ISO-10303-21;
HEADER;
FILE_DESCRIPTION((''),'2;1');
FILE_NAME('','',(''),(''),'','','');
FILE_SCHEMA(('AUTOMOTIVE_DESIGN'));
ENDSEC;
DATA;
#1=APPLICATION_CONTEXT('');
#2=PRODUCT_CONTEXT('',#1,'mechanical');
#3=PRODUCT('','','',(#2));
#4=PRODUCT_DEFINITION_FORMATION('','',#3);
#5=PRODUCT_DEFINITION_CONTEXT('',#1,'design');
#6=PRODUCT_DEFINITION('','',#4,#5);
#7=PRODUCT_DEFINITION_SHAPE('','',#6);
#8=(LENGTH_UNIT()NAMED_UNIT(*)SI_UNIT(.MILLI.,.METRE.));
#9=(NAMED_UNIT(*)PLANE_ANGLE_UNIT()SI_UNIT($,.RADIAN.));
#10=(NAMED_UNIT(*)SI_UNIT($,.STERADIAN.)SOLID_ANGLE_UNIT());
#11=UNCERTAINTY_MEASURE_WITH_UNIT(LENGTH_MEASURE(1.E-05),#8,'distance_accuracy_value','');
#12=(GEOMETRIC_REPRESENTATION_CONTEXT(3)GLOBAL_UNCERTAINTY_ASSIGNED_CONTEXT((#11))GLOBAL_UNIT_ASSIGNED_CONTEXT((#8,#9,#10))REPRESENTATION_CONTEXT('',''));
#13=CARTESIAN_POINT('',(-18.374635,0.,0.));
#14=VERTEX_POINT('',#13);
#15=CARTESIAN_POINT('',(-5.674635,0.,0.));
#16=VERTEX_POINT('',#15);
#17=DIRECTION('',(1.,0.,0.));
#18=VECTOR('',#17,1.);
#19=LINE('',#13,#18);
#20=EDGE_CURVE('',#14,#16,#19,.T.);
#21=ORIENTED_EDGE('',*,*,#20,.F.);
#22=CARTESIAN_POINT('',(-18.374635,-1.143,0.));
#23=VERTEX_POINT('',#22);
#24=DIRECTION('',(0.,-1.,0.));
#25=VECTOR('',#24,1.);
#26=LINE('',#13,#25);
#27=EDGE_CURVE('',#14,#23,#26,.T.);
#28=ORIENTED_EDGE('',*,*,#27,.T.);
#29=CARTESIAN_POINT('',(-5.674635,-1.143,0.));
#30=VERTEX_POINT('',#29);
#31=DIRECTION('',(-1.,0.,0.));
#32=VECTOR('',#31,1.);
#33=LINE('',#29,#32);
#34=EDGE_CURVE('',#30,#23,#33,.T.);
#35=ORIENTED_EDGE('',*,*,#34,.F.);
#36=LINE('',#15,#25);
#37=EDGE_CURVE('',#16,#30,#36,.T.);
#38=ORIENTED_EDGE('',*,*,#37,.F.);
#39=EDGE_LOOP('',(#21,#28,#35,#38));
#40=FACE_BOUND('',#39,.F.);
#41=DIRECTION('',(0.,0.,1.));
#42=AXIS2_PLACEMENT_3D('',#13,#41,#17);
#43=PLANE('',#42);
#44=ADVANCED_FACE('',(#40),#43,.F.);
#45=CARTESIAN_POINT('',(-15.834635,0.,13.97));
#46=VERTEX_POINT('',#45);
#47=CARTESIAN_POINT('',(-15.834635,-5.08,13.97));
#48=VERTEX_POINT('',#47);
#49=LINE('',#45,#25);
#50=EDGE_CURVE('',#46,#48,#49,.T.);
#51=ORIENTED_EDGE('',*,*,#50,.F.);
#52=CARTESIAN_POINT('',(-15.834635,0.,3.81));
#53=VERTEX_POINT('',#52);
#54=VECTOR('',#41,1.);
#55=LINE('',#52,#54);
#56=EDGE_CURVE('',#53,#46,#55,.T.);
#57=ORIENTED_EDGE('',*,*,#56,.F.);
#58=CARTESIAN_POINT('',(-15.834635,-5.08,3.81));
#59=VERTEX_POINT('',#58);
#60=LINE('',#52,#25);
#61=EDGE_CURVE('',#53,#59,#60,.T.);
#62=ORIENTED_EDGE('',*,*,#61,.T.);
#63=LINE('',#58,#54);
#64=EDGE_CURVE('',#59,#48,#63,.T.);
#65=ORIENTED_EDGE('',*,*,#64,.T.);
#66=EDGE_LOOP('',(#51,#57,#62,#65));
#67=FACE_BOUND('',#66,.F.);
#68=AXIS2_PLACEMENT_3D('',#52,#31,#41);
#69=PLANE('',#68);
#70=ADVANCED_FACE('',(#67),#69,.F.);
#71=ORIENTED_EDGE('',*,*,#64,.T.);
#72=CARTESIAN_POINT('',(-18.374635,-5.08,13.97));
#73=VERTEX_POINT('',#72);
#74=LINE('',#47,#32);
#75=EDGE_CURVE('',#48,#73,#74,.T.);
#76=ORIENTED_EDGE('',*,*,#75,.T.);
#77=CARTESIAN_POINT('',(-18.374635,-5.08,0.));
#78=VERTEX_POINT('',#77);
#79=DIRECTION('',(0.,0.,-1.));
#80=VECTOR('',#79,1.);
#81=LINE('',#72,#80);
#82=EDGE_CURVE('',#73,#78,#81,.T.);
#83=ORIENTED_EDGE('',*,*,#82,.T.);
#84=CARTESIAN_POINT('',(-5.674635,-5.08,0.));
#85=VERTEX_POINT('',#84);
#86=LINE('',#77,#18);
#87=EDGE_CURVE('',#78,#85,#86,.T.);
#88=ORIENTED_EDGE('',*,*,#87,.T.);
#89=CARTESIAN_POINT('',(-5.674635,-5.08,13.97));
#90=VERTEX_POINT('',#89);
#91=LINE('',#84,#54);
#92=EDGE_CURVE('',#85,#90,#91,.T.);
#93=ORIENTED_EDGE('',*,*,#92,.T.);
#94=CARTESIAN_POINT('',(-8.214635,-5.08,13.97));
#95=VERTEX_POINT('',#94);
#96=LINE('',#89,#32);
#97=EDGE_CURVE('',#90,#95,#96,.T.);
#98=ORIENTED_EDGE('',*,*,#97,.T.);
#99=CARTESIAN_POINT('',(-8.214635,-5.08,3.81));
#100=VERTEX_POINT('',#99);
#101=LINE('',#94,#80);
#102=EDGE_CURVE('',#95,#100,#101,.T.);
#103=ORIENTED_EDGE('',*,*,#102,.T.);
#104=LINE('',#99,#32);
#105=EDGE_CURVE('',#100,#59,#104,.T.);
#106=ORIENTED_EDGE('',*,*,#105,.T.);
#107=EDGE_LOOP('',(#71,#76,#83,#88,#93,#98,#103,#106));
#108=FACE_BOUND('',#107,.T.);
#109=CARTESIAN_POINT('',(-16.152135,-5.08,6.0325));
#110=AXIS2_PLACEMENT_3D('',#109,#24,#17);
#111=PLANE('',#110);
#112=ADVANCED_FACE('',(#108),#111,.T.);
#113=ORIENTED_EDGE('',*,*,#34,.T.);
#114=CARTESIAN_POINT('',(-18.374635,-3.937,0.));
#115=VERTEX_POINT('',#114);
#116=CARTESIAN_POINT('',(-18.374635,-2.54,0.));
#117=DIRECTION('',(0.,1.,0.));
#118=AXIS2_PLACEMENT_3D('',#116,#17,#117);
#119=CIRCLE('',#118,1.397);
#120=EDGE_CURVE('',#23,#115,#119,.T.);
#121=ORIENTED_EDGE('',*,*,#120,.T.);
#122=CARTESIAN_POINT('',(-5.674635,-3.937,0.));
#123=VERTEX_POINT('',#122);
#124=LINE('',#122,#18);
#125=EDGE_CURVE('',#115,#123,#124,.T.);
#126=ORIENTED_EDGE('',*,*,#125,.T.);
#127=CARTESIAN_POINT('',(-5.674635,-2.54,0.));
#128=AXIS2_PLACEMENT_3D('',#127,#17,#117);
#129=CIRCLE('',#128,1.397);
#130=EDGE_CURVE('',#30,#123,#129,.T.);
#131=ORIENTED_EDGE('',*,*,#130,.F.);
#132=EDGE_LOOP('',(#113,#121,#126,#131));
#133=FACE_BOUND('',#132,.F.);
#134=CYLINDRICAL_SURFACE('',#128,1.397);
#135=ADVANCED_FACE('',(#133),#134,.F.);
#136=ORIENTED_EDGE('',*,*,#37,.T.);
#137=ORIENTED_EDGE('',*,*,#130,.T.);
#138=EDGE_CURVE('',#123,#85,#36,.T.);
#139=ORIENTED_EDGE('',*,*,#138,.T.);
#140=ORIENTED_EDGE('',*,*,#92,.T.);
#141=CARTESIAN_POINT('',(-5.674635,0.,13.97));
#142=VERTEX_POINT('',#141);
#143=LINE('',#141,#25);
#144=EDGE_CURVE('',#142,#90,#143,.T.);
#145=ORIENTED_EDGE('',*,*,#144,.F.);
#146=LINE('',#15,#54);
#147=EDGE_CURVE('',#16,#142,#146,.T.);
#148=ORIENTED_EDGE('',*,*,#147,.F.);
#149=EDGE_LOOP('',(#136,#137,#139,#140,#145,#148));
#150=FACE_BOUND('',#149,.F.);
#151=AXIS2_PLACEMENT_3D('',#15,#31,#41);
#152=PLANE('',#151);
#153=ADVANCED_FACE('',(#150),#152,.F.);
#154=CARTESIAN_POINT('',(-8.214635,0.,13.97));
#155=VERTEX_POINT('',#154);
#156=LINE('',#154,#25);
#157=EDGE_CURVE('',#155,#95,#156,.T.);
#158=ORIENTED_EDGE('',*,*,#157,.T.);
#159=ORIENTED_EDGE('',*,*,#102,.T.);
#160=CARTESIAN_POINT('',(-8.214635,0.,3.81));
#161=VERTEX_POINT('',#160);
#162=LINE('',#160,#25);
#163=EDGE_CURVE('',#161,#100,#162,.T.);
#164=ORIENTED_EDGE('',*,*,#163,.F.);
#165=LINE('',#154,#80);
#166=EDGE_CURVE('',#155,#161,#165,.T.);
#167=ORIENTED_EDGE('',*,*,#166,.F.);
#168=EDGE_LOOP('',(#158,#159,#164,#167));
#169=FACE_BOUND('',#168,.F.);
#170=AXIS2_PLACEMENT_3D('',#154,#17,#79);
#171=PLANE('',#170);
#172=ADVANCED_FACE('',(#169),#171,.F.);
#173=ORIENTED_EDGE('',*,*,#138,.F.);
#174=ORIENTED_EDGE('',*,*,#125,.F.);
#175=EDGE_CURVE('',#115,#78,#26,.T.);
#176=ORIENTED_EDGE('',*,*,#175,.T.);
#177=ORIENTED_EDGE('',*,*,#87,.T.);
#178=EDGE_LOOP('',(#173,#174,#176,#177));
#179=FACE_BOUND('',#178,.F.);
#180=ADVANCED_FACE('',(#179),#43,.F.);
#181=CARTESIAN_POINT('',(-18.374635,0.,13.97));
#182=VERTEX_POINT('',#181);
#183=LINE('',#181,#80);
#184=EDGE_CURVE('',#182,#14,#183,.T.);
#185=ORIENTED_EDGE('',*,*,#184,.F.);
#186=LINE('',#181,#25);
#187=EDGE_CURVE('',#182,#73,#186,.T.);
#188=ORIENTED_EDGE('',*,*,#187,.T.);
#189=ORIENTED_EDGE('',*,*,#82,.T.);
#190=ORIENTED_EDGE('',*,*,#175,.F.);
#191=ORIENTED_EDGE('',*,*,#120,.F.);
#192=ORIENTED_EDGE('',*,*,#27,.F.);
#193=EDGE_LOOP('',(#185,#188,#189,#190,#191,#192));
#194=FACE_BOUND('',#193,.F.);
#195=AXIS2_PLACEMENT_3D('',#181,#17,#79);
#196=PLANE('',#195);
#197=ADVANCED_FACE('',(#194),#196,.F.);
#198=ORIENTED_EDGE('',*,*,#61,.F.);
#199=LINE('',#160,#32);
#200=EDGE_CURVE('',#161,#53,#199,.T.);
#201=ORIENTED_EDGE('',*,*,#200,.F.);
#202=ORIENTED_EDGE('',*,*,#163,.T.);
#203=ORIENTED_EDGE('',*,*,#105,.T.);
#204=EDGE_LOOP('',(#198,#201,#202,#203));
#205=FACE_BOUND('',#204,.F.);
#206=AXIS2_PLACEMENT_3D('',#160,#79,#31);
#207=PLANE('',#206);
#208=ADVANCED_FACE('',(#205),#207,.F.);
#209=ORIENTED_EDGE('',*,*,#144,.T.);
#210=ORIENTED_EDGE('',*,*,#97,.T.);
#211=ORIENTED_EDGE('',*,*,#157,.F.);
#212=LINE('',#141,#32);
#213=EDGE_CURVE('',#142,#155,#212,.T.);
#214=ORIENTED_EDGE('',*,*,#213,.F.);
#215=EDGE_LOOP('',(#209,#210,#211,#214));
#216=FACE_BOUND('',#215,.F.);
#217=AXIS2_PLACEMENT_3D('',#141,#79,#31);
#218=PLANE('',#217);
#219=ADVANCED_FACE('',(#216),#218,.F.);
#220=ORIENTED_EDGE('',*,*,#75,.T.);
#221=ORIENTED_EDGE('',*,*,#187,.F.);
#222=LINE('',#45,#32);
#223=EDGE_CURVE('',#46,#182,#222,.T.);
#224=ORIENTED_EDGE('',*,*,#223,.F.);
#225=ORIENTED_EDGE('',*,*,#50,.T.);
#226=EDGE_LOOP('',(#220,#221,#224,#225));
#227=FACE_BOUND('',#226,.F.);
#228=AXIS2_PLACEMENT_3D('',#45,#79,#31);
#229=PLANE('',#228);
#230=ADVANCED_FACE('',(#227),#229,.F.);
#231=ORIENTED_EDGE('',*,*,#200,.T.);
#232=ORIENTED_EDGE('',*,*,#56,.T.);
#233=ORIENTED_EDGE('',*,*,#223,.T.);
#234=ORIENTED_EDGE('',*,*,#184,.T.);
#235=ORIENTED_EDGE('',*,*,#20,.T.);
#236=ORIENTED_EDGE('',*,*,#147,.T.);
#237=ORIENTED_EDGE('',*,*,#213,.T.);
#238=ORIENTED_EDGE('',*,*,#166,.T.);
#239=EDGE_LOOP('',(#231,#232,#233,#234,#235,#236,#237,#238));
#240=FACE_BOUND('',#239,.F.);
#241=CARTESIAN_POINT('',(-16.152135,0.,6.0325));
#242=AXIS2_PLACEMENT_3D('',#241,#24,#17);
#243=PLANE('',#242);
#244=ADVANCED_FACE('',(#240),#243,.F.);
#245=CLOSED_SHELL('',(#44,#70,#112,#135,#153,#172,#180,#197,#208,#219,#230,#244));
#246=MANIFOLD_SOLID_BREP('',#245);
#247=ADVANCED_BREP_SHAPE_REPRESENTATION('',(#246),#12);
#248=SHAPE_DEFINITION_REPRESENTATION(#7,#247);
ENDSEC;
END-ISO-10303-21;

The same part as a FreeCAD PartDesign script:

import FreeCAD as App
import Part
import Sketcher
Q = App.Units.Quantity


def add_polygon(sketch, points):
    """Adds a closed chain of lines whose ends are joined by coincident constraints."""
    first, n = sketch.GeometryCount, len(points)
    for a, b in zip(points, points[1:] + points[:1]):
        sketch.addGeometry(Part.LineSegment(App.Vector(*a, 0), App.Vector(*b, 0)), False)
    for i in range(n):
        sketch.addConstraint(Sketcher.Constraint("Coincident", first + i, 2, first + (i + 1) % n, 1))

doc = App.newDocument("Part")
body = doc.addObject("PartDesign::Body", "Body")

sketch1 = body.newObject("Sketcher::SketchObject", "Sketch")
sketch1.AttachmentSupport = (doc.getObject("XZ_Plane"), [""])
sketch1.MapMode = "FlatFace"
add_polygon(sketch1, [(-15.8, 14), (-18.4, 14), (-18.4, 0), (-5.7, 0), (-5.7, 14), (-8.2, 14), (-8.2, 3.8), (-15.8, 3.8)])
sketch1.addConstraint([
    Sketcher.Constraint("Horizontal", 0),
    Sketcher.Constraint("Vertical", 1),
    Sketcher.Constraint("Horizontal", 2),
    Sketcher.Constraint("Vertical", 3),
    Sketcher.Constraint("Horizontal", 4),
    Sketcher.Constraint("Vertical", 5),
    Sketcher.Constraint("Horizontal", 6),
    Sketcher.Constraint("Vertical", 7),
    Sketcher.Constraint("PointOnObject", 1, 2, -1),
    Sketcher.Constraint("Horizontal", 0, 2, 3, 2),
    Sketcher.Constraint("Equal", 0, 4),
    Sketcher.Constraint("DistanceX", 0, 2, 0, 1, Q("0.1 in")),
    Sketcher.Constraint("DistanceX", 2, 1, 2, 2, Q("0.5 in")),
    Sketcher.Constraint("DistanceY", 5, 2, 5, 1, Q("0.4 in")),
    Sketcher.Constraint("DistanceY", 1, 2, 1, 1, Q("0.55 in")),
    Sketcher.Constraint("DistanceX", 0, 2, -1, 1, Q("18.374635 mm")),
])
pad1 = body.newObject("PartDesign::Pad", "Pad")
pad1.Profile = sketch1
pad1.Length = Q("0.2 in")

sketch2 = body.newObject("Sketcher::SketchObject", "Sketch001")
sketch2.AttachmentSupport = (doc.getObject("YZ_Plane"), [""])
sketch2.MapMode = "FlatFace"
sketch2.AttachmentOffset = App.Placement(App.Vector(0, 0, -5.674635), App.Rotation())
sketch2.addGeometry(Part.Circle(App.Vector(-2.5, 0, 0), App.Vector(0, 0, 1), 1.4), False)
sketch2.addConstraint([
    Sketcher.Constraint("PointOnObject", 0, 3, -1),
    Sketcher.Constraint("Diameter", 0, Q("0.11 in")),
    Sketcher.Constraint("DistanceX", 0, 3, -1, 1, Q("0.1 in")),
])
pocket1 = body.newObject("PartDesign::Pocket", "Pocket")
pocket1.Profile = sketch2
pocket1.Length = Q("1 in")

doc.recompute()
